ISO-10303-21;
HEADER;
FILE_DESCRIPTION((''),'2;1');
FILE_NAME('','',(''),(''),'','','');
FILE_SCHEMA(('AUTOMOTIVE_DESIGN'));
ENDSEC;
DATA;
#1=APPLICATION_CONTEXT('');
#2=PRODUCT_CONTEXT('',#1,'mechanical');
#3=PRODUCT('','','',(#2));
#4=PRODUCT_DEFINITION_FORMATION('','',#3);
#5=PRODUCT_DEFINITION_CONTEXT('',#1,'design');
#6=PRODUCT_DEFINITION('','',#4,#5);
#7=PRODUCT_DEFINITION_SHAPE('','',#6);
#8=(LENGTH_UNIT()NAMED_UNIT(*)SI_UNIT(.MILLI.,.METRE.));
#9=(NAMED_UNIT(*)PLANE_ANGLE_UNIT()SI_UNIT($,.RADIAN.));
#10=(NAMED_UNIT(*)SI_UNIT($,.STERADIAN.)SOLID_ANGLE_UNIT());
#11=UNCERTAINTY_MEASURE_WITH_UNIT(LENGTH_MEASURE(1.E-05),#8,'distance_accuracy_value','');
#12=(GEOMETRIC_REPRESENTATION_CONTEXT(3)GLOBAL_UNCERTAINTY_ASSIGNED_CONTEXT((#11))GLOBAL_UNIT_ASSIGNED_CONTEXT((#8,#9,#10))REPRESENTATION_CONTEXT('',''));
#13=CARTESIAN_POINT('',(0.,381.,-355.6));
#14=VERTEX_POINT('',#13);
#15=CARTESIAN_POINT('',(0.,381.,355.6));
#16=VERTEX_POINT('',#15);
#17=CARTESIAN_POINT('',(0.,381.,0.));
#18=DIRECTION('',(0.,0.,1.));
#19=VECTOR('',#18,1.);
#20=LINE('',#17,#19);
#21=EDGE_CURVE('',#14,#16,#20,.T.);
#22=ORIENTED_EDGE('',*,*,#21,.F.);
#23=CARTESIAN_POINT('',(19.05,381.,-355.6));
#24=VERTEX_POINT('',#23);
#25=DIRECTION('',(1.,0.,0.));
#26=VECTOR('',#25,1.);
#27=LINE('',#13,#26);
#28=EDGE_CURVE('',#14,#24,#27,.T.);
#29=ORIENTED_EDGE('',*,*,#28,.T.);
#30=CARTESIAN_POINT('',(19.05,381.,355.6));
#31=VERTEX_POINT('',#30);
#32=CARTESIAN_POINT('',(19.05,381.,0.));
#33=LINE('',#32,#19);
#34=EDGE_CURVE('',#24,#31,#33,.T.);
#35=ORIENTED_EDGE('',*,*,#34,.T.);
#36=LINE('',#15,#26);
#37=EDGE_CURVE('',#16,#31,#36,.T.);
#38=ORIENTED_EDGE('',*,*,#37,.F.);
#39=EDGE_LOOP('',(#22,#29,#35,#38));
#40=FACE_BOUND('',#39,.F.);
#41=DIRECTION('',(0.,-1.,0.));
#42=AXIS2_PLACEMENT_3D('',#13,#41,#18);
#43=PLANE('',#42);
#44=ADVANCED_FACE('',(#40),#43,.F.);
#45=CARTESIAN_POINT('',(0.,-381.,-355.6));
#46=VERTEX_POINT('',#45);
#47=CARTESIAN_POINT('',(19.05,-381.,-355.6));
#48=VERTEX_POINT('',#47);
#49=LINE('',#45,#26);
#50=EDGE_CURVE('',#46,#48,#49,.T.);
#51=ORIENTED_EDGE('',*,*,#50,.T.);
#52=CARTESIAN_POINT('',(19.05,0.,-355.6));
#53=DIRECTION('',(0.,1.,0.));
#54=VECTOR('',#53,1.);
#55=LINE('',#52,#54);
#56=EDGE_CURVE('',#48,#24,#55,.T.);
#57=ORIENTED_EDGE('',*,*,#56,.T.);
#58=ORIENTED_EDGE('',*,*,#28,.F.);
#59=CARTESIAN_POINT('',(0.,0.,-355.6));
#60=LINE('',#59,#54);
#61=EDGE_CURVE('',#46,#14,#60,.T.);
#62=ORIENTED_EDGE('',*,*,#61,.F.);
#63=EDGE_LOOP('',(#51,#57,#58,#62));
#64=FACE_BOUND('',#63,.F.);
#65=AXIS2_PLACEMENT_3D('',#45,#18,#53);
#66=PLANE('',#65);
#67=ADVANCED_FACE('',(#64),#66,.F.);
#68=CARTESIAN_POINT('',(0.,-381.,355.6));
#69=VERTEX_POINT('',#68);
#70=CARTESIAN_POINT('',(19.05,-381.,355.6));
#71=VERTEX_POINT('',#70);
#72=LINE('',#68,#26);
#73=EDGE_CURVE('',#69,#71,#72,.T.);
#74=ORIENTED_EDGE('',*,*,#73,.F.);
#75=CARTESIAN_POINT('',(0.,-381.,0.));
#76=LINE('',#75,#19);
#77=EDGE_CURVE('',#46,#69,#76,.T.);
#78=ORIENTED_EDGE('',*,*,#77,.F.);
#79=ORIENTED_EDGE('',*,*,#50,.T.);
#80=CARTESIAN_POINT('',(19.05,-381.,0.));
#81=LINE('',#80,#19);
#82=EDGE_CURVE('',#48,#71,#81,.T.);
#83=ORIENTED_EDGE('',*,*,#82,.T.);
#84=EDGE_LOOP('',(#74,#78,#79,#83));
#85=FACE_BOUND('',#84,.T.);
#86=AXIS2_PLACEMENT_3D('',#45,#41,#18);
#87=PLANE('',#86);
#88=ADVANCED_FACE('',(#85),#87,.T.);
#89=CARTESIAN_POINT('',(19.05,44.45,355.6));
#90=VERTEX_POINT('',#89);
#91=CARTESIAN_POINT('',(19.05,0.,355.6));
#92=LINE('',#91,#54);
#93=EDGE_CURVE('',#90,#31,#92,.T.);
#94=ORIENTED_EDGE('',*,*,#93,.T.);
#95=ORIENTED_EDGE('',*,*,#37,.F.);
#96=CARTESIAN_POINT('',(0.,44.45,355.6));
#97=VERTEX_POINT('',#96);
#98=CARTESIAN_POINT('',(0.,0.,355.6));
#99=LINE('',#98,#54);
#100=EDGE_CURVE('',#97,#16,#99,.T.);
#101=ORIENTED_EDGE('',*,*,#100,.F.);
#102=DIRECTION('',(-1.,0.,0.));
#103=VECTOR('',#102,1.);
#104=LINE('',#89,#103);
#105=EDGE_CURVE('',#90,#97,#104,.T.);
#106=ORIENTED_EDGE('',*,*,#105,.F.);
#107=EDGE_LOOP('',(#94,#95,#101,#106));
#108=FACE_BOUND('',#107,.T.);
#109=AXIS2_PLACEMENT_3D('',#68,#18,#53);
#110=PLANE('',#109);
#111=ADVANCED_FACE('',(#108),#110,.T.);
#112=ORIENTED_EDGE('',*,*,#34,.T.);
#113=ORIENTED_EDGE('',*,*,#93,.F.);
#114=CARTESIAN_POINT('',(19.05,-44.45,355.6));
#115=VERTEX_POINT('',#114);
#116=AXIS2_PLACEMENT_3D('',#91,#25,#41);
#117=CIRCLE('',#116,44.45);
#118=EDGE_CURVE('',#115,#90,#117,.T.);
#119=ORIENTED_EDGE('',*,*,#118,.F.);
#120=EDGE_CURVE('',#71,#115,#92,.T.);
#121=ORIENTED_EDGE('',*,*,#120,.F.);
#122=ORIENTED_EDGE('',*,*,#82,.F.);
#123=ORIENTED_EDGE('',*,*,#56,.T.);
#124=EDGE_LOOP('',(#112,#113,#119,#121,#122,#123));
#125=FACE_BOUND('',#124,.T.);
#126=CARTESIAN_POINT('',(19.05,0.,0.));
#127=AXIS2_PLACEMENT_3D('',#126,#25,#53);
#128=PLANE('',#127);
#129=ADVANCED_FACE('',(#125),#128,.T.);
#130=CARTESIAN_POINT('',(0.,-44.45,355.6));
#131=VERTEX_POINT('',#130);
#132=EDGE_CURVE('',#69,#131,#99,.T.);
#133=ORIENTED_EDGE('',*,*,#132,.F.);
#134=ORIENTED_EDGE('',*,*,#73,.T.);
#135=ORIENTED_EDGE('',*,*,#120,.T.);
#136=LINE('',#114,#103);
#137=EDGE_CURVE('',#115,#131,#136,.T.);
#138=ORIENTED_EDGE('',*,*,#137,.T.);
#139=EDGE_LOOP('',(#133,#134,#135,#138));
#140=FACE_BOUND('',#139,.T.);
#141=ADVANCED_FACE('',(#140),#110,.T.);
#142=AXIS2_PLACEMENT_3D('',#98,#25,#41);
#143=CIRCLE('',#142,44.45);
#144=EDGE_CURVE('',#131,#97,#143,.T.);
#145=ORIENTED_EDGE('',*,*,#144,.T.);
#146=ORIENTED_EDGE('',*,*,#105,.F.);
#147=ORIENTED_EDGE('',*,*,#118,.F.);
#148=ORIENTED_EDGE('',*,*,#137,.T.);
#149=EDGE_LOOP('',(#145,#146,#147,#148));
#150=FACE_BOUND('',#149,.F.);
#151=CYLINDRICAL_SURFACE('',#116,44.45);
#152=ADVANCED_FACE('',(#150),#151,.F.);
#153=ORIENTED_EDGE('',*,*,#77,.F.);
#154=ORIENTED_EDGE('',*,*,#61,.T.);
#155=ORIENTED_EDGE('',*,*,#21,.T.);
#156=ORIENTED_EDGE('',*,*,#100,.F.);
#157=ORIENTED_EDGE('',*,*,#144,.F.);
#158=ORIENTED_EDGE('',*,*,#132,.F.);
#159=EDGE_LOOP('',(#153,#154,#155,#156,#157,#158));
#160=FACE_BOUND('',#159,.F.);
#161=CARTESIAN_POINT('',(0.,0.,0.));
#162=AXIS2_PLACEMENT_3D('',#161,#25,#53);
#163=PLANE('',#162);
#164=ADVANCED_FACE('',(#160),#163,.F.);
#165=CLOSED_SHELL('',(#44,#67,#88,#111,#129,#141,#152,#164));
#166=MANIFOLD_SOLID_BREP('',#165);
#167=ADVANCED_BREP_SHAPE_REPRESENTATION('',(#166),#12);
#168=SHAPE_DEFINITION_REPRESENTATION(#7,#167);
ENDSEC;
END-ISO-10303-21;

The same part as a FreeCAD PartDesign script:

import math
import FreeCAD as App
import Part
import Sketcher
from FreeCAD import Vector
Q = App.Units.Quantity


def add_polygon(sketch, points):
    """Adds a closed chain of lines whose ends are joined by coincident constraints."""
    first, n = sketch.GeometryCount, len(points)
    for a, b in zip(points, points[1:] + points[:1]):
        sketch.addGeometry(Part.LineSegment(App.Vector(*a, 0), App.Vector(*b, 0)), False)
    for i in range(n):
        sketch.addConstraint(Sketcher.Constraint("Coincident", first + i, 2, first + (i + 1) % n, 1))

doc = App.newDocument("Part")
params = doc.addObject("Spreadsheet::Sheet", "Params")
for row, (alias, value) in enumerate([
    ("sketch1_width", "30 in"),
    ("sketch1_height", "28 in"),
    ("pad1_length", "0.75 in"),
    ("sketch2_radius", "1.75 in"),
    ("pocket1_length", "1 in"),
], start=1):
    params.set(f"A{row}", alias)
    params.set(f"B{row}", "=" + value)
    params.setAlias(f"B{row}", alias)

body = doc.addObject("PartDesign::Body", "Body")

sketch1 = body.newObject("Sketcher::SketchObject", "Sketch")
sketch1.AttachmentSupport = (doc.getObject("YZ_Plane"), [""])
sketch1.MapMode = "FlatFace"
add_polygon(sketch1, [(-381, 356), (-381, -356), (381, -356), (381, 356)])
sketch1.addConstraint(Sketcher.Constraint("Vertical", 0))
sketch1.addConstraint(Sketcher.Constraint("Horizontal", 1))
sketch1.addConstraint(Sketcher.Constraint("Vertical", 2))
sketch1.addConstraint(Sketcher.Constraint("Horizontal", 3))
sketch1.addConstraint(Sketcher.Constraint("Symmetric", 0, 2, 2, 2, -1, 1))
sketch1.addConstraint(Sketcher.Constraint("DistanceX", 1, 1, 1, 2, Q("30 in")))
sketch1.addConstraint(Sketcher.Constraint("DistanceY", 0, 2, 0, 1, Q("28 in")))
sketch1.setExpression("Constraints[9]", "Params.sketch1_width")
sketch1.setExpression("Constraints[10]", "Params.sketch1_height")
pad1 = body.newObject("PartDesign::Pad", "Pad")
pad1.Profile = sketch1
pad1.setExpression("Length", "Params.pad1_length")

sketch2 = body.newObject("Sketcher::SketchObject", "Sketch001")
sketch2.AttachmentSupport = (doc.getObject("YZ_Plane"), [""])
sketch2.MapMode = "FlatFace"
sketch2.AttachmentOffset = App.Placement(Vector(0, 0, 0.75 * 25.4), App.Rotation())
sketch2.addGeometry(Part.ArcOfCircle(Part.Circle(Vector(0, 356, 0), Vector(0, 0, 1), 44), math.radians(180), math.radians(360)), False)
sketch2.addGeometry(Part.LineSegment(Vector(44, 356, 0), Vector(-44, 356, 0)), False)
sketch2.addConstraint(Sketcher.Constraint("Coincident", 0, 1, 1, 2))
sketch2.addConstraint(Sketcher.Constraint("Coincident", 1, 1, 0, 2))
sketch2.addConstraint(Sketcher.Constraint("Horizontal", 1))
sketch2.addConstraint(Sketcher.Constraint("PointOnObject", 0, 3, -2))
sketch2.addConstraint(Sketcher.Constraint("Radius", 0, Q("1.75 in")))
sketch2.addConstraint(Sketcher.Constraint("DistanceY", -1, 1, 0, 3, Q("14 in")))
sketch2.addConstraint(Sketcher.Constraint("DistanceY", -1, 1, 0, 1, Q("14 in")))
sketch2.setExpression("Constraints[4]", "Params.sketch2_radius")
pocket1 = body.newObject("PartDesign::Pocket", "Pocket")
pocket1.Profile = sketch2
pocket1.setExpression("Length", "Params.pocket1_length")

doc.recompute()
